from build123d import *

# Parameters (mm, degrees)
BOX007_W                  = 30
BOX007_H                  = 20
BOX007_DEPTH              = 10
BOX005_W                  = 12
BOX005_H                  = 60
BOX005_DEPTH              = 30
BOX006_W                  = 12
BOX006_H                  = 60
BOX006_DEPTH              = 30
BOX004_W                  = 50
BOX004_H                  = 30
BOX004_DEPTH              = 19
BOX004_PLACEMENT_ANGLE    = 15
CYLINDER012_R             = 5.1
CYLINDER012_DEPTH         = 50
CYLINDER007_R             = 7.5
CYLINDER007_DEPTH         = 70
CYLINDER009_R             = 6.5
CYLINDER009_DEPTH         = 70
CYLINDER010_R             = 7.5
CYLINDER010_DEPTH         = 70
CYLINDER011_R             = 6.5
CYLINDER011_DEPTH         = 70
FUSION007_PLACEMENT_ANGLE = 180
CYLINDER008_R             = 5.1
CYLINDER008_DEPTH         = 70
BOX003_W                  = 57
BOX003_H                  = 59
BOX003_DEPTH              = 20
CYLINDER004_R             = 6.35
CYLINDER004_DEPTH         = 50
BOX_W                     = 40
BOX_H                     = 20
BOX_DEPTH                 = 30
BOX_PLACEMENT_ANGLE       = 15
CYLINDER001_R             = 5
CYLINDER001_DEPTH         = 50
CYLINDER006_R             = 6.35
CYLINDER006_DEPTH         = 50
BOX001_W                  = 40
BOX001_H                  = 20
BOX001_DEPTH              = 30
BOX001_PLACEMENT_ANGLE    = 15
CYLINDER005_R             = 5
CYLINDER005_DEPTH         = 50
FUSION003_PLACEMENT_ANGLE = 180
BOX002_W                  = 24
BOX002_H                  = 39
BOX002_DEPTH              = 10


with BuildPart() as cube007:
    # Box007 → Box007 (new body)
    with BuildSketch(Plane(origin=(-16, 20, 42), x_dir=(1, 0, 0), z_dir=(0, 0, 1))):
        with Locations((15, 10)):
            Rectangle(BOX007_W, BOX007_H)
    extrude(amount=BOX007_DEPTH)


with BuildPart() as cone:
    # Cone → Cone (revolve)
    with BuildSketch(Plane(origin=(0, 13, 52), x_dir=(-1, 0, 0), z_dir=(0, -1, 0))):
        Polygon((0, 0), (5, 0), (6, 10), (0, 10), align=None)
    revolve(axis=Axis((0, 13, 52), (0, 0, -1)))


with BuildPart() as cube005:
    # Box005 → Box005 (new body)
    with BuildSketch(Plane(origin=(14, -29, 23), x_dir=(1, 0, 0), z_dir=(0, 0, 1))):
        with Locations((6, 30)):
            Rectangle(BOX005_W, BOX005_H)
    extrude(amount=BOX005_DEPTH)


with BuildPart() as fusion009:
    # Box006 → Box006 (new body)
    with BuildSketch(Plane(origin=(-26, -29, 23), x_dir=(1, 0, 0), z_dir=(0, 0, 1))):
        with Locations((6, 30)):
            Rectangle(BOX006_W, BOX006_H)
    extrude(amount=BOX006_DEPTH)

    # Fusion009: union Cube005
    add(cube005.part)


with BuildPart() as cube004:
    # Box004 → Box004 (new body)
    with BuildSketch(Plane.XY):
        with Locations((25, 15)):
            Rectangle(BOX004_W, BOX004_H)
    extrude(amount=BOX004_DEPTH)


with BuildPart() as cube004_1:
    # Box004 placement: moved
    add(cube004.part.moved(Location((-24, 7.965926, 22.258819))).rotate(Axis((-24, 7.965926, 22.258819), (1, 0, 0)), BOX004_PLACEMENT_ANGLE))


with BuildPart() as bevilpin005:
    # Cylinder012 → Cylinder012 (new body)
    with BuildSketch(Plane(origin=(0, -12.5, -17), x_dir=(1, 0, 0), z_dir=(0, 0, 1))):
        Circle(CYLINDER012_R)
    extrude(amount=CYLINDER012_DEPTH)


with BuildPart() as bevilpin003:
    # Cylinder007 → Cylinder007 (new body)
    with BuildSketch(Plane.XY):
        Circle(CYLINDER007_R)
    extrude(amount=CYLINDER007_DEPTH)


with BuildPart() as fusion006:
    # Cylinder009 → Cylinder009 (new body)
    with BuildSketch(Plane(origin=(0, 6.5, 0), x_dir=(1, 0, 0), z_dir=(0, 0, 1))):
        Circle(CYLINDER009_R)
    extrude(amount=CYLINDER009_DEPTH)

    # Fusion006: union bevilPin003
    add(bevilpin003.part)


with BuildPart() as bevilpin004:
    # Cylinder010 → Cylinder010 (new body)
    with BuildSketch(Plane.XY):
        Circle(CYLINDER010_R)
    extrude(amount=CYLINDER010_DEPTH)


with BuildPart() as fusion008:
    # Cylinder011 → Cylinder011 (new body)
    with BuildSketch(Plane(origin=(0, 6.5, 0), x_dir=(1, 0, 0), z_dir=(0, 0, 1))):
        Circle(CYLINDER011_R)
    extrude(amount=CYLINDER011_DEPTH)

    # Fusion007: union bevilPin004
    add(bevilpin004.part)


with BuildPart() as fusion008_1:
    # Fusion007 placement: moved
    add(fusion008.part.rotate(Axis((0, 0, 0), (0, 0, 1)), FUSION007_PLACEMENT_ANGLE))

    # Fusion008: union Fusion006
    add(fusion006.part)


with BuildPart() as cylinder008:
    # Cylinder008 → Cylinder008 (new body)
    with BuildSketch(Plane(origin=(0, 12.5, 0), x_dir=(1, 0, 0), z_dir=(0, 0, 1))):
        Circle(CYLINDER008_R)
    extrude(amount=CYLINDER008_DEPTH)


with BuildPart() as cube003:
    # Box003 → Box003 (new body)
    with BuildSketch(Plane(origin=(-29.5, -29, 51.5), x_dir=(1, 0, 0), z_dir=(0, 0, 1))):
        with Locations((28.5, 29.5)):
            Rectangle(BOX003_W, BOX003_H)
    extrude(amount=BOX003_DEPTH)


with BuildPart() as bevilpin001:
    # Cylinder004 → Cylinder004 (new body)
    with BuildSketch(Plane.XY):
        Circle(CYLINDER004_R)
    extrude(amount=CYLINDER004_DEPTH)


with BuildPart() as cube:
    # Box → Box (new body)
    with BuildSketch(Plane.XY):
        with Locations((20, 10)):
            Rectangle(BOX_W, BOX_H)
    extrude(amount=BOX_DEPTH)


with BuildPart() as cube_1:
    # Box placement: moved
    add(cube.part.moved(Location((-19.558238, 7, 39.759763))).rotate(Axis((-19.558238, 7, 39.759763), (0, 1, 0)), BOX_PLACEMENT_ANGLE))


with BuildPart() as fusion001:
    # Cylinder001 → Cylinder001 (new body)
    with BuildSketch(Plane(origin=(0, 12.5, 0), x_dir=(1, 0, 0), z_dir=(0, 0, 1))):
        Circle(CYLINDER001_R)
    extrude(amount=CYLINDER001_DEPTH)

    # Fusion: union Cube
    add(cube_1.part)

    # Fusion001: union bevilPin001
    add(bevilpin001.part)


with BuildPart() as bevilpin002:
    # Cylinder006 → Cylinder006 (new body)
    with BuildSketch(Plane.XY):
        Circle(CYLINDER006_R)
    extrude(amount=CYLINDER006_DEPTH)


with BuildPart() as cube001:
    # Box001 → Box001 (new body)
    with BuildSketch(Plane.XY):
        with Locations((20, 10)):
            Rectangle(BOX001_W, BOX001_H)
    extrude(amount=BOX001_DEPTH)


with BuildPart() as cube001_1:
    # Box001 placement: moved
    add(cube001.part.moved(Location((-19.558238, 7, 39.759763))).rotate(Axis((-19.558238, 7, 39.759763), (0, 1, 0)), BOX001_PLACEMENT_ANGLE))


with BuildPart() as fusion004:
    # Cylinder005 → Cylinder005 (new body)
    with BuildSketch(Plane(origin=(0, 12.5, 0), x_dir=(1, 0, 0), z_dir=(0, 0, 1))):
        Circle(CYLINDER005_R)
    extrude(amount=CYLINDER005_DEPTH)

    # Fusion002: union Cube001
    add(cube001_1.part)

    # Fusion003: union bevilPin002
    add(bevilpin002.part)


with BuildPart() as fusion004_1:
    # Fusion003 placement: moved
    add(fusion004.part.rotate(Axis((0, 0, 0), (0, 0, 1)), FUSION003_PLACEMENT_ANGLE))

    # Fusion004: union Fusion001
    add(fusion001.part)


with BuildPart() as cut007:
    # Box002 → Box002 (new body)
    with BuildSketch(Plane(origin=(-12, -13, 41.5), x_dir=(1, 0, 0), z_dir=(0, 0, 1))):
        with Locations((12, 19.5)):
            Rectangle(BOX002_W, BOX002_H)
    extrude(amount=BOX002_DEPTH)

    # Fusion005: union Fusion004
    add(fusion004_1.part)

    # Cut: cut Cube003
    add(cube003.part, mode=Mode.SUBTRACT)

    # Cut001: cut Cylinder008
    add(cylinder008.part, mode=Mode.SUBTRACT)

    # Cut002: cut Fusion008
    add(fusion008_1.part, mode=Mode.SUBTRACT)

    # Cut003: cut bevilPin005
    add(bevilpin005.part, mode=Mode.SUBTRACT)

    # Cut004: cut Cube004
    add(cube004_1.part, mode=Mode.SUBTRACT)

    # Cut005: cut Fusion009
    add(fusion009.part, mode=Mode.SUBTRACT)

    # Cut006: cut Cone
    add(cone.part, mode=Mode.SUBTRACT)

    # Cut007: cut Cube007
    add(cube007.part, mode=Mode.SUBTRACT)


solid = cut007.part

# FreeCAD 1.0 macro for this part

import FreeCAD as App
import Part
import Sketcher
from FreeCAD import Vector
Q = App.Units.Quantity


def add_polygon(sketch, points):
    """Adds a closed chain of lines whose ends are joined by coincident constraints."""
    first, n = sketch.GeometryCount, len(points)
    for a, b in zip(points, points[1:] + points[:1]):
        sketch.addGeometry(Part.LineSegment(App.Vector(*a, 0), App.Vector(*b, 0)), False)
    for i in range(n):
        sketch.addConstraint(Sketcher.Constraint("Coincident", first + i, 2, first + (i + 1) % n, 1))

doc = App.newDocument("Part")
body = doc.addObject("PartDesign::Body", "Body")

# Sketch on XY plane
sketch1 = body.newObject("Sketcher::SketchObject", "Sketch")
sketch1.AttachmentSupport = (doc.getObject("XY_Plane"), [""])
sketch1.MapMode = "FlatFace"
sketch1.AttachmentOffset = App.Placement(Vector(0, 0, 42), App.Rotation())
add_polygon(sketch1, [(-16, 40), (-16, 20), (14, 20), (14, 40)])  # lines 0-3
sketch1.addConstraint(Sketcher.Constraint("Vertical", 0))
sketch1.addConstraint(Sketcher.Constraint("Horizontal", 1))
sketch1.addConstraint(Sketcher.Constraint("Vertical", 2))
sketch1.addConstraint(Sketcher.Constraint("Horizontal", 3))
sketch1.addConstraint(Sketcher.Constraint("DistanceX", 1, 1, 1, 2, Q("30 mm")))
sketch1.addConstraint(Sketcher.Constraint("DistanceY", 0, 2, 0, 1, Q("20 mm")))
sketch1.addConstraint(Sketcher.Constraint("DistanceX", 0, 2, -1, 1, Q("16 mm")))
sketch1.addConstraint(Sketcher.Constraint("DistanceY", -1, 1, 0, 2, Q("20 mm")))
pad1 = body.newObject("PartDesign::Pad", "Pad")
pad1.Profile = sketch1
pad1.Length = 10
body2 = doc.addObject("PartDesign::Body", "Body001")

# Sketch on XZ plane
sketch2 = body2.newObject("Sketcher::SketchObject", "Sketch001")
sketch2.AttachmentSupport = (doc.getObject("XZ_Plane001"), [""])
sketch2.MapMode = "FlatFace"
sketch2.AttachmentOffset = App.Placement(Vector(0, 0, -13), App.Rotation())
add_polygon(sketch2, [(0, 52), (-5, 52), (-6, 42), (0, 42)])  # lines 0-3
sketch2.addConstraint(Sketcher.Constraint("Horizontal", 0))
sketch2.addConstraint(Sketcher.Constraint("Horizontal", 2))
sketch2.addConstraint(Sketcher.Constraint("Vertical", 3))
sketch2.addConstraint(Sketcher.Constraint("PointOnObject", 2, 2, -2))
sketch2.addConstraint(Sketcher.Constraint("DistanceX", 0, 2, 0, 1, Q("5 mm")))
sketch2.addConstraint(Sketcher.Constraint("DistanceX", 2, 1, 2, 2, Q("6 mm")))
sketch2.addConstraint(Sketcher.Constraint("DistanceY", 3, 1, 3, 2, Q("10 mm")))
sketch2.addConstraint(Sketcher.Constraint("DistanceY", -1, 1, 0, 2, Q("52 mm")))
revolution = body2.newObject("PartDesign::Revolution", "Revolution")
revolution.Profile = sketch2
revolution.ReferenceAxis = (sketch2, ["V_Axis"])
revolution.Angle = 360
body3 = doc.addObject("PartDesign::Body", "Body002")

# Sketch on XY plane
sketch3 = body3.newObject("Sketcher::SketchObject", "Sketch002")
sketch3.AttachmentSupport = (doc.getObject("XY_Plane002"), [""])
sketch3.MapMode = "FlatFace"
sketch3.AttachmentOffset = App.Placement(Vector(0, 0, 23), App.Rotation())
add_polygon(sketch3, [(14, 31), (14, -29), (26, -29), (26, 31)])  # lines 0-3
sketch3.addConstraint(Sketcher.Constraint("Vertical", 0))
sketch3.addConstraint(Sketcher.Constraint("Horizontal", 1))
sketch3.addConstraint(Sketcher.Constraint("Vertical", 2))
sketch3.addConstraint(Sketcher.Constraint("Horizontal", 3))
sketch3.addConstraint(Sketcher.Constraint("DistanceX", 1, 1, 1, 2, Q("12 mm")))
sketch3.addConstraint(Sketcher.Constraint("DistanceY", 0, 2, 0, 1, Q("60 mm")))
sketch3.addConstraint(Sketcher.Constraint("DistanceX", -1, 1, 0, 2, Q("14 mm")))
sketch3.addConstraint(Sketcher.Constraint("DistanceY", 0, 2, -1, 1, Q("29 mm")))
pad2 = body3.newObject("PartDesign::Pad", "Pad001")
pad2.Profile = sketch3
pad2.Length = 30
body4 = doc.addObject("PartDesign::Body", "Body003")
body4.AllowCompound = True

# Sketch on XY plane
sketch4 = body4.newObject("Sketcher::SketchObject", "Sketch003")
sketch4.AttachmentSupport = (doc.getObject("XY_Plane003"), [""])
sketch4.MapMode = "FlatFace"
sketch4.AttachmentOffset = App.Placement(Vector(0, 0, 23), App.Rotation())
add_polygon(sketch4, [(-26, 31), (-26, -29), (-14, -29), (-14, 31)])  # lines 0-3
sketch4.addConstraint(Sketcher.Constraint("Vertical", 0))
sketch4.addConstraint(Sketcher.Constraint("Horizontal", 1))
sketch4.addConstraint(Sketcher.Constraint("Vertical", 2))
sketch4.addConstraint(Sketcher.Constraint("Horizontal", 3))
sketch4.addConstraint(Sketcher.Constraint("DistanceX", 1, 1, 1, 2, Q("12 mm")))
sketch4.addConstraint(Sketcher.Constraint("DistanceY", 0, 2, 0, 1, Q("60 mm")))
sketch4.addConstraint(Sketcher.Constraint("DistanceX", 0, 2, -1, 1, Q("26 mm")))
sketch4.addConstraint(Sketcher.Constraint("DistanceY", 0, 2, -1, 1, Q("29 mm")))
pad3 = body4.newObject("PartDesign::Pad", "Pad002")
pad3.Profile = sketch4
pad3.Length = 30
doc.recompute()

boolean = body4.newObject("PartDesign::Boolean", "Boolean")
boolean.Type = "Fuse"
boolean.addObjects([body3])
body5 = doc.addObject("PartDesign::Body", "Body004")

# Sketch on XY plane
sketch5 = body5.newObject("Sketcher::SketchObject", "Sketch004")
sketch5.AttachmentSupport = (doc.getObject("XY_Plane004"), [""])
sketch5.MapMode = "FlatFace"
add_polygon(sketch5, [(0, 30), (0, 0), (50, 0), (50, 30)])  # lines 0-3
sketch5.addConstraint(Sketcher.Constraint("Vertical", 0))
sketch5.addConstraint(Sketcher.Constraint("Horizontal", 1))
sketch5.addConstraint(Sketcher.Constraint("Vertical", 2))
sketch5.addConstraint(Sketcher.Constraint("Horizontal", 3))
sketch5.addConstraint(Sketcher.Constraint("Coincident", 0, 2, -1, 1))
sketch5.addConstraint(Sketcher.Constraint("DistanceX", 1, 1, 1, 2, Q("50 mm")))
sketch5.addConstraint(Sketcher.Constraint("DistanceY", 0, 2, 0, 1, Q("30 mm")))
pad4 = body5.newObject("PartDesign::Pad", "Pad003")
pad4.Profile = sketch5
pad4.Length = 19
body6 = doc.addObject("PartDesign::Body", "Body005")
doc.recompute()

body5.Placement = App.Placement(Vector(-24, 7.965926, 22.258819), App.Rotation(Vector(1, 0, 0), 15))
boolean2 = body6.newObject("PartDesign::Boolean", "Boolean001")
boolean2.Type = "Fuse"
boolean2.addObjects([body5])
body7 = doc.addObject("PartDesign::Body", "Body006")

# Sketch on XY plane
sketch6 = body7.newObject("Sketcher::SketchObject", "Sketch005")
sketch6.AttachmentSupport = (doc.getObject("XY_Plane006"), [""])
sketch6.MapMode = "FlatFace"
sketch6.AttachmentOffset = App.Placement(Vector(0, 0, -17), App.Rotation())
sketch6.addGeometry(Part.Circle(Vector(0, -12, 0), Vector(0, 0, 1), 5), False)
sketch6.addConstraint(Sketcher.Constraint("PointOnObject", 0, 3, -2))
sketch6.addConstraint(Sketcher.Constraint("Diameter", 0, Q("10.2 mm")))
sketch6.addConstraint(Sketcher.Constraint("DistanceY", 0, 3, -1, 1, Q("12.5 mm")))
pad5 = body7.newObject("PartDesign::Pad", "Pad004")
pad5.Profile = sketch6
pad5.Length = 50
body8 = doc.addObject("PartDesign::Body", "Body007")

# Sketch on XY plane
sketch7 = body8.newObject("Sketcher::SketchObject", "Sketch006")
sketch7.AttachmentSupport = (doc.getObject("XY_Plane007"), [""])
sketch7.MapMode = "FlatFace"
sketch7.addGeometry(Part.Circle(Vector(0, 0, 0), Vector(0, 0, 1), 8), False)
sketch7.addConstraint(Sketcher.Constraint("Coincident", 0, 3, -1, 1))
sketch7.addConstraint(Sketcher.Constraint("Diameter", 0, Q("15 mm")))
pad6 = body8.newObject("PartDesign::Pad", "Pad005")
pad6.Profile = sketch7
pad6.Length = 70
body9 = doc.addObject("PartDesign::Body", "Body008")

# Sketch on XY plane
sketch8 = body9.newObject("Sketcher::SketchObject", "Sketch007")
sketch8.AttachmentSupport = (doc.getObject("XY_Plane008"), [""])
sketch8.MapMode = "FlatFace"
sketch8.addGeometry(Part.Circle(Vector(0, 6, 0), Vector(0, 0, 1), 6), False)
sketch8.addConstraint(Sketcher.Constraint("PointOnObject", 0, 3, -2))
sketch8.addConstraint(Sketcher.Constraint("Diameter", 0, Q("13 mm")))
sketch8.addConstraint(Sketcher.Constraint("DistanceY", -1, 1, 0, 3, Q("6.5 mm")))
pad7 = body9.newObject("PartDesign::Pad", "Pad006")
pad7.Profile = sketch8
pad7.Length = 70
doc.recompute()

boolean3 = body9.newObject("PartDesign::Boolean", "Boolean002")
boolean3.Type = "Fuse"
boolean3.addObjects([body8])
body10 = doc.addObject("PartDesign::Body", "Body009")

# Sketch on XY plane
sketch9 = body10.newObject("Sketcher::SketchObject", "Sketch008")
sketch9.AttachmentSupport = (doc.getObject("XY_Plane009"), [""])
sketch9.MapMode = "FlatFace"
sketch9.addGeometry(Part.Circle(Vector(0, 0, 0), Vector(0, 0, 1), 8), False)
sketch9.addConstraint(Sketcher.Constraint("Coincident", 0, 3, -1, 1))
sketch9.addConstraint(Sketcher.Constraint("Diameter", 0, Q("15 mm")))
pad8 = body10.newObject("PartDesign::Pad", "Pad007")
pad8.Profile = sketch9
pad8.Length = 70
body11 = doc.addObject("PartDesign::Body", "Body010")

# Sketch on XY plane
sketch10 = body11.newObject("Sketcher::SketchObject", "Sketch009")
sketch10.AttachmentSupport = (doc.getObject("XY_Plane010"), [""])
sketch10.MapMode = "FlatFace"
sketch10.addGeometry(Part.Circle(Vector(0, 6, 0), Vector(0, 0, 1), 6), False)
sketch10.addConstraint(Sketcher.Constraint("PointOnObject", 0, 3, -2))
sketch10.addConstraint(Sketcher.Constraint("Diameter", 0, Q("13 mm")))
sketch10.addConstraint(Sketcher.Constraint("DistanceY", -1, 1, 0, 3, Q("6.5 mm")))
pad9 = body11.newObject("PartDesign::Pad", "Pad008")
pad9.Profile = sketch10
pad9.Length = 70
doc.recompute()

boolean4 = body11.newObject("PartDesign::Boolean", "Boolean003")
boolean4.Type = "Fuse"
boolean4.addObjects([body10])
body12 = doc.addObject("PartDesign::Body", "Body011")
doc.recompute()

body11.Placement = App.Placement(Vector(0, 0, 0), App.Rotation(Vector(0, 0, 1), 180))
boolean5 = body12.newObject("PartDesign::Boolean", "Boolean004")
boolean5.Type = "Fuse"
boolean5.addObjects([body11])
doc.recompute()

boolean6 = body12.newObject("PartDesign::Boolean", "Boolean005")
boolean6.Type = "Fuse"
boolean6.addObjects([body9])
body13 = doc.addObject("PartDesign::Body", "Body012")

# Sketch on XY plane
sketch11 = body13.newObject("Sketcher::SketchObject", "Sketch010")
sketch11.AttachmentSupport = (doc.getObject("XY_Plane012"), [""])
sketch11.MapMode = "FlatFace"
sketch11.addGeometry(Part.Circle(Vector(0, 12, 0), Vector(0, 0, 1), 5), False)
sketch11.addConstraint(Sketcher.Constraint("PointOnObject", 0, 3, -2))
sketch11.addConstraint(Sketcher.Constraint("Diameter", 0, Q("10.2 mm")))
sketch11.addConstraint(Sketcher.Constraint("DistanceY", -1, 1, 0, 3, Q("12.5 mm")))
pad10 = body13.newObject("PartDesign::Pad", "Pad009")
pad10.Profile = sketch11
pad10.Length = 70
body14 = doc.addObject("PartDesign::Body", "Body013")

# Sketch on XY plane
sketch12 = body14.newObject("Sketcher::SketchObject", "Sketch011")
sketch12.AttachmentSupport = (doc.getObject("XY_Plane013"), [""])
sketch12.MapMode = "FlatFace"
sketch12.AttachmentOffset = App.Placement(Vector(0, 0, 51.5), App.Rotation())
add_polygon(sketch12, [(-30, 30), (-30, -29), (28, -29), (28, 30)])  # lines 0-3
sketch12.addConstraint(Sketcher.Constraint("Vertical", 0))
sketch12.addConstraint(Sketcher.Constraint("Horizontal", 1))
sketch12.addConstraint(Sketcher.Constraint("Vertical", 2))
sketch12.addConstraint(Sketcher.Constraint("Horizontal", 3))
sketch12.addConstraint(Sketcher.Constraint("DistanceX", 1, 1, 1, 2, Q("57 mm")))
sketch12.addConstraint(Sketcher.Constraint("DistanceY", 0, 2, 0, 1, Q("59 mm")))
sketch12.addConstraint(Sketcher.Constraint("DistanceY", 0, 2, -1, 1, Q("29 mm")))
sketch12.addConstraint(Sketcher.Constraint("DistanceX", 0, 2, -1, 1, Q("29.5 mm")))
pad11 = body14.newObject("PartDesign::Pad", "Pad010")
pad11.Profile = sketch12
pad11.Length = 20
body15 = doc.addObject("PartDesign::Body", "Body014")

# Sketch on XY plane
sketch13 = body15.newObject("Sketcher::SketchObject", "Sketch012")
sketch13.AttachmentSupport = (doc.getObject("XY_Plane014"), [""])
sketch13.MapMode = "FlatFace"
sketch13.addGeometry(Part.Circle(Vector(0, 0, 0), Vector(0, 0, 1), 6), False)
sketch13.addConstraint(Sketcher.Constraint("Coincident", 0, 3, -1, 1))
sketch13.addConstraint(Sketcher.Constraint("Diameter", 0, Q("12.7 mm")))
pad12 = body15.newObject("PartDesign::Pad", "Pad011")
pad12.Profile = sketch13
pad12.Length = 50
body16 = doc.addObject("PartDesign::Body", "Body015")

# Sketch on XY plane
sketch14 = body16.newObject("Sketcher::SketchObject", "Sketch013")
sketch14.AttachmentSupport = (doc.getObject("XY_Plane015"), [""])
sketch14.MapMode = "FlatFace"
add_polygon(sketch14, [(0, 20), (0, 0), (40, 0), (40, 20)])  # lines 0-3
sketch14.addConstraint(Sketcher.Constraint("Vertical", 0))
sketch14.addConstraint(Sketcher.Constraint("Horizontal", 1))
sketch14.addConstraint(Sketcher.Constraint("Vertical", 2))
sketch14.addConstraint(Sketcher.Constraint("Horizontal", 3))
sketch14.addConstraint(Sketcher.Constraint("Coincident", 0, 2, -1, 1))
sketch14.addConstraint(Sketcher.Constraint("DistanceX", 1, 1, 1, 2, Q("40 mm")))
sketch14.addConstraint(Sketcher.Constraint("DistanceY", 0, 2, 0, 1, Q("20 mm")))
pad13 = body16.newObject("PartDesign::Pad", "Pad012")
pad13.Profile = sketch14
pad13.Length = 30
body17 = doc.addObject("PartDesign::Body", "Body016")
doc.recompute()

body16.Placement = App.Placement(Vector(-19.558238, 7, 39.759763), App.Rotation(Vector(0, 1, 0), 15))
boolean7 = body17.newObject("PartDesign::Boolean", "Boolean006")
boolean7.Type = "Fuse"
boolean7.addObjects([body16])
body18 = doc.addObject("PartDesign::Body", "Body017")
body18.AllowCompound = True

# Sketch on XY plane
sketch15 = body18.newObject("Sketcher::SketchObject", "Sketch014")
sketch15.AttachmentSupport = (doc.getObject("XY_Plane017"), [""])
sketch15.MapMode = "FlatFace"
sketch15.addGeometry(Part.Circle(Vector(0, 12, 0), Vector(0, 0, 1), 5), False)
sketch15.addConstraint(Sketcher.Constraint("PointOnObject", 0, 3, -2))
sketch15.addConstraint(Sketcher.Constraint("Diameter", 0, Q("10 mm")))
sketch15.addConstraint(Sketcher.Constraint("DistanceY", -1, 1, 0, 3, Q("12.5 mm")))
pad14 = body18.newObject("PartDesign::Pad", "Pad013")
pad14.Profile = sketch15
pad14.Length = 50
doc.recompute()

boolean8 = body18.newObject("PartDesign::Boolean", "Boolean007")
boolean8.Type = "Fuse"
boolean8.addObjects([body17])
doc.recompute()

boolean9 = body18.newObject("PartDesign::Boolean", "Boolean008")
boolean9.Type = "Fuse"
boolean9.addObjects([body15])
body19 = doc.addObject("PartDesign::Body", "Body018")

# Sketch on XY plane
sketch16 = body19.newObject("Sketcher::SketchObject", "Sketch015")
sketch16.AttachmentSupport = (doc.getObject("XY_Plane018"), [""])
sketch16.MapMode = "FlatFace"
sketch16.addGeometry(Part.Circle(Vector(0, 0, 0), Vector(0, 0, 1), 6), False)
sketch16.addConstraint(Sketcher.Constraint("Coincident", 0, 3, -1, 1))
sketch16.addConstraint(Sketcher.Constraint("Diameter", 0, Q("12.7 mm")))
pad15 = body19.newObject("PartDesign::Pad", "Pad014")
pad15.Profile = sketch16
pad15.Length = 50
body20 = doc.addObject("PartDesign::Body", "Body019")

# Sketch on XY plane
sketch17 = body20.newObject("Sketcher::SketchObject", "Sketch016")
sketch17.AttachmentSupport = (doc.getObject("XY_Plane019"), [""])
sketch17.MapMode = "FlatFace"
add_polygon(sketch17, [(0, 20), (0, 0), (40, 0), (40, 20)])  # lines 0-3
sketch17.addConstraint(Sketcher.Constraint("Vertical", 0))
sketch17.addConstraint(Sketcher.Constraint("Horizontal", 1))
sketch17.addConstraint(Sketcher.Constraint("Vertical", 2))
sketch17.addConstraint(Sketcher.Constraint("Horizontal", 3))
sketch17.addConstraint(Sketcher.Constraint("Coincident", 0, 2, -1, 1))
sketch17.addConstraint(Sketcher.Constraint("DistanceX", 1, 1, 1, 2, Q("40 mm")))
sketch17.addConstraint(Sketcher.Constraint("DistanceY", 0, 2, 0, 1, Q("20 mm")))
pad16 = body20.newObject("PartDesign::Pad", "Pad015")
pad16.Profile = sketch17
pad16.Length = 30
body21 = doc.addObject("PartDesign::Body", "Body020")
doc.recompute()

body20.Placement = App.Placement(Vector(-19.558238, 7, 39.759763), App.Rotation(Vector(0, 1, 0), 15))
boolean10 = body21.newObject("PartDesign::Boolean", "Boolean009")
boolean10.Type = "Fuse"
boolean10.addObjects([body20])
body22 = doc.addObject("PartDesign::Body", "Body021")
body22.AllowCompound = True

# Sketch on XY plane
sketch18 = body22.newObject("Sketcher::SketchObject", "Sketch017")
sketch18.AttachmentSupport = (doc.getObject("XY_Plane021"), [""])
sketch18.MapMode = "FlatFace"
sketch18.addGeometry(Part.Circle(Vector(0, 12, 0), Vector(0, 0, 1), 5), False)
sketch18.addConstraint(Sketcher.Constraint("PointOnObject", 0, 3, -2))
sketch18.addConstraint(Sketcher.Constraint("Diameter", 0, Q("10 mm")))
sketch18.addConstraint(Sketcher.Constraint("DistanceY", -1, 1, 0, 3, Q("12.5 mm")))
pad17 = body22.newObject("PartDesign::Pad", "Pad016")
pad17.Profile = sketch18
pad17.Length = 50
doc.recompute()

boolean11 = body22.newObject("PartDesign::Boolean", "Boolean010")
boolean11.Type = "Fuse"
boolean11.addObjects([body21])
doc.recompute()

boolean12 = body22.newObject("PartDesign::Boolean", "Boolean011")
boolean12.Type = "Fuse"
boolean12.addObjects([body19])
body23 = doc.addObject("PartDesign::Body", "Body022")
body23.AllowCompound = True
doc.recompute()

body22.Placement = App.Placement(Vector(0, 0, 0), App.Rotation(Vector(0, 0, 1), 180))
boolean13 = body23.newObject("PartDesign::Boolean", "Boolean012")
boolean13.Type = "Fuse"
boolean13.addObjects([body22])
doc.recompute()

boolean14 = body23.newObject("PartDesign::Boolean", "Boolean013")
boolean14.Type = "Fuse"
boolean14.addObjects([body18])
body24 = doc.addObject("PartDesign::Body", "Body023")

# Sketch on XY plane
sketch19 = body24.newObject("Sketcher::SketchObject", "Sketch018")
sketch19.AttachmentSupport = (doc.getObject("XY_Plane023"), [""])
sketch19.MapMode = "FlatFace"
sketch19.AttachmentOffset = App.Placement(Vector(0, 0, 41.5), App.Rotation())
add_polygon(sketch19, [(-12, 26), (-12, -13), (12, -13), (12, 26)])  # lines 0-3
sketch19.addConstraint(Sketcher.Constraint("Vertical", 0))
sketch19.addConstraint(Sketcher.Constraint("Horizontal", 1))
sketch19.addConstraint(Sketcher.Constraint("Vertical", 2))
sketch19.addConstraint(Sketcher.Constraint("Horizontal", 3))
sketch19.addConstraint(Sketcher.Constraint("DistanceX", 1, 1, 1, 2, Q("24 mm")))
sketch19.addConstraint(Sketcher.Constraint("DistanceY", 0, 2, 0, 1, Q("39 mm")))
sketch19.addConstraint(Sketcher.Constraint("DistanceX", 0, 2, -1, 1, Q("12 mm")))
sketch19.addConstraint(Sketcher.Constraint("DistanceY", 0, 2, -1, 1, Q("13 mm")))
pad18 = body24.newObject("PartDesign::Pad", "Pad017")
pad18.Profile = sketch19
pad18.Length = 10
doc.recompute()

boolean15 = body24.newObject("PartDesign::Boolean", "Boolean014")
boolean15.Type = "Fuse"
boolean15.addObjects([body23])
doc.recompute()

boolean16 = body24.newObject("PartDesign::Boolean", "Boolean015")
boolean16.Type = "Cut"
boolean16.addObjects([body14])
doc.recompute()

boolean17 = body24.newObject("PartDesign::Boolean", "Boolean016")
boolean17.Type = "Cut"
boolean17.addObjects([body13])
doc.recompute()

boolean18 = body24.newObject("PartDesign::Boolean", "Boolean017")
boolean18.Type = "Cut"
boolean18.addObjects([body12])
doc.recompute()

boolean19 = body24.newObject("PartDesign::Boolean", "Boolean018")
boolean19.Type = "Cut"
boolean19.addObjects([body7])
doc.recompute()

boolean20 = body24.newObject("PartDesign::Boolean", "Boolean019")
boolean20.Type = "Cut"
boolean20.addObjects([body6])
doc.recompute()

boolean21 = body24.newObject("PartDesign::Boolean", "Boolean020")
boolean21.Type = "Cut"
boolean21.addObjects([body4])
doc.recompute()

boolean22 = body24.newObject("PartDesign::Boolean", "Boolean021")
boolean22.Type = "Cut"
boolean22.addObjects([body2])
doc.recompute()

boolean23 = body24.newObject("PartDesign::Boolean", "Boolean022")
boolean23.Type = "Cut"
boolean23.addObjects([body])

doc.recompute()
